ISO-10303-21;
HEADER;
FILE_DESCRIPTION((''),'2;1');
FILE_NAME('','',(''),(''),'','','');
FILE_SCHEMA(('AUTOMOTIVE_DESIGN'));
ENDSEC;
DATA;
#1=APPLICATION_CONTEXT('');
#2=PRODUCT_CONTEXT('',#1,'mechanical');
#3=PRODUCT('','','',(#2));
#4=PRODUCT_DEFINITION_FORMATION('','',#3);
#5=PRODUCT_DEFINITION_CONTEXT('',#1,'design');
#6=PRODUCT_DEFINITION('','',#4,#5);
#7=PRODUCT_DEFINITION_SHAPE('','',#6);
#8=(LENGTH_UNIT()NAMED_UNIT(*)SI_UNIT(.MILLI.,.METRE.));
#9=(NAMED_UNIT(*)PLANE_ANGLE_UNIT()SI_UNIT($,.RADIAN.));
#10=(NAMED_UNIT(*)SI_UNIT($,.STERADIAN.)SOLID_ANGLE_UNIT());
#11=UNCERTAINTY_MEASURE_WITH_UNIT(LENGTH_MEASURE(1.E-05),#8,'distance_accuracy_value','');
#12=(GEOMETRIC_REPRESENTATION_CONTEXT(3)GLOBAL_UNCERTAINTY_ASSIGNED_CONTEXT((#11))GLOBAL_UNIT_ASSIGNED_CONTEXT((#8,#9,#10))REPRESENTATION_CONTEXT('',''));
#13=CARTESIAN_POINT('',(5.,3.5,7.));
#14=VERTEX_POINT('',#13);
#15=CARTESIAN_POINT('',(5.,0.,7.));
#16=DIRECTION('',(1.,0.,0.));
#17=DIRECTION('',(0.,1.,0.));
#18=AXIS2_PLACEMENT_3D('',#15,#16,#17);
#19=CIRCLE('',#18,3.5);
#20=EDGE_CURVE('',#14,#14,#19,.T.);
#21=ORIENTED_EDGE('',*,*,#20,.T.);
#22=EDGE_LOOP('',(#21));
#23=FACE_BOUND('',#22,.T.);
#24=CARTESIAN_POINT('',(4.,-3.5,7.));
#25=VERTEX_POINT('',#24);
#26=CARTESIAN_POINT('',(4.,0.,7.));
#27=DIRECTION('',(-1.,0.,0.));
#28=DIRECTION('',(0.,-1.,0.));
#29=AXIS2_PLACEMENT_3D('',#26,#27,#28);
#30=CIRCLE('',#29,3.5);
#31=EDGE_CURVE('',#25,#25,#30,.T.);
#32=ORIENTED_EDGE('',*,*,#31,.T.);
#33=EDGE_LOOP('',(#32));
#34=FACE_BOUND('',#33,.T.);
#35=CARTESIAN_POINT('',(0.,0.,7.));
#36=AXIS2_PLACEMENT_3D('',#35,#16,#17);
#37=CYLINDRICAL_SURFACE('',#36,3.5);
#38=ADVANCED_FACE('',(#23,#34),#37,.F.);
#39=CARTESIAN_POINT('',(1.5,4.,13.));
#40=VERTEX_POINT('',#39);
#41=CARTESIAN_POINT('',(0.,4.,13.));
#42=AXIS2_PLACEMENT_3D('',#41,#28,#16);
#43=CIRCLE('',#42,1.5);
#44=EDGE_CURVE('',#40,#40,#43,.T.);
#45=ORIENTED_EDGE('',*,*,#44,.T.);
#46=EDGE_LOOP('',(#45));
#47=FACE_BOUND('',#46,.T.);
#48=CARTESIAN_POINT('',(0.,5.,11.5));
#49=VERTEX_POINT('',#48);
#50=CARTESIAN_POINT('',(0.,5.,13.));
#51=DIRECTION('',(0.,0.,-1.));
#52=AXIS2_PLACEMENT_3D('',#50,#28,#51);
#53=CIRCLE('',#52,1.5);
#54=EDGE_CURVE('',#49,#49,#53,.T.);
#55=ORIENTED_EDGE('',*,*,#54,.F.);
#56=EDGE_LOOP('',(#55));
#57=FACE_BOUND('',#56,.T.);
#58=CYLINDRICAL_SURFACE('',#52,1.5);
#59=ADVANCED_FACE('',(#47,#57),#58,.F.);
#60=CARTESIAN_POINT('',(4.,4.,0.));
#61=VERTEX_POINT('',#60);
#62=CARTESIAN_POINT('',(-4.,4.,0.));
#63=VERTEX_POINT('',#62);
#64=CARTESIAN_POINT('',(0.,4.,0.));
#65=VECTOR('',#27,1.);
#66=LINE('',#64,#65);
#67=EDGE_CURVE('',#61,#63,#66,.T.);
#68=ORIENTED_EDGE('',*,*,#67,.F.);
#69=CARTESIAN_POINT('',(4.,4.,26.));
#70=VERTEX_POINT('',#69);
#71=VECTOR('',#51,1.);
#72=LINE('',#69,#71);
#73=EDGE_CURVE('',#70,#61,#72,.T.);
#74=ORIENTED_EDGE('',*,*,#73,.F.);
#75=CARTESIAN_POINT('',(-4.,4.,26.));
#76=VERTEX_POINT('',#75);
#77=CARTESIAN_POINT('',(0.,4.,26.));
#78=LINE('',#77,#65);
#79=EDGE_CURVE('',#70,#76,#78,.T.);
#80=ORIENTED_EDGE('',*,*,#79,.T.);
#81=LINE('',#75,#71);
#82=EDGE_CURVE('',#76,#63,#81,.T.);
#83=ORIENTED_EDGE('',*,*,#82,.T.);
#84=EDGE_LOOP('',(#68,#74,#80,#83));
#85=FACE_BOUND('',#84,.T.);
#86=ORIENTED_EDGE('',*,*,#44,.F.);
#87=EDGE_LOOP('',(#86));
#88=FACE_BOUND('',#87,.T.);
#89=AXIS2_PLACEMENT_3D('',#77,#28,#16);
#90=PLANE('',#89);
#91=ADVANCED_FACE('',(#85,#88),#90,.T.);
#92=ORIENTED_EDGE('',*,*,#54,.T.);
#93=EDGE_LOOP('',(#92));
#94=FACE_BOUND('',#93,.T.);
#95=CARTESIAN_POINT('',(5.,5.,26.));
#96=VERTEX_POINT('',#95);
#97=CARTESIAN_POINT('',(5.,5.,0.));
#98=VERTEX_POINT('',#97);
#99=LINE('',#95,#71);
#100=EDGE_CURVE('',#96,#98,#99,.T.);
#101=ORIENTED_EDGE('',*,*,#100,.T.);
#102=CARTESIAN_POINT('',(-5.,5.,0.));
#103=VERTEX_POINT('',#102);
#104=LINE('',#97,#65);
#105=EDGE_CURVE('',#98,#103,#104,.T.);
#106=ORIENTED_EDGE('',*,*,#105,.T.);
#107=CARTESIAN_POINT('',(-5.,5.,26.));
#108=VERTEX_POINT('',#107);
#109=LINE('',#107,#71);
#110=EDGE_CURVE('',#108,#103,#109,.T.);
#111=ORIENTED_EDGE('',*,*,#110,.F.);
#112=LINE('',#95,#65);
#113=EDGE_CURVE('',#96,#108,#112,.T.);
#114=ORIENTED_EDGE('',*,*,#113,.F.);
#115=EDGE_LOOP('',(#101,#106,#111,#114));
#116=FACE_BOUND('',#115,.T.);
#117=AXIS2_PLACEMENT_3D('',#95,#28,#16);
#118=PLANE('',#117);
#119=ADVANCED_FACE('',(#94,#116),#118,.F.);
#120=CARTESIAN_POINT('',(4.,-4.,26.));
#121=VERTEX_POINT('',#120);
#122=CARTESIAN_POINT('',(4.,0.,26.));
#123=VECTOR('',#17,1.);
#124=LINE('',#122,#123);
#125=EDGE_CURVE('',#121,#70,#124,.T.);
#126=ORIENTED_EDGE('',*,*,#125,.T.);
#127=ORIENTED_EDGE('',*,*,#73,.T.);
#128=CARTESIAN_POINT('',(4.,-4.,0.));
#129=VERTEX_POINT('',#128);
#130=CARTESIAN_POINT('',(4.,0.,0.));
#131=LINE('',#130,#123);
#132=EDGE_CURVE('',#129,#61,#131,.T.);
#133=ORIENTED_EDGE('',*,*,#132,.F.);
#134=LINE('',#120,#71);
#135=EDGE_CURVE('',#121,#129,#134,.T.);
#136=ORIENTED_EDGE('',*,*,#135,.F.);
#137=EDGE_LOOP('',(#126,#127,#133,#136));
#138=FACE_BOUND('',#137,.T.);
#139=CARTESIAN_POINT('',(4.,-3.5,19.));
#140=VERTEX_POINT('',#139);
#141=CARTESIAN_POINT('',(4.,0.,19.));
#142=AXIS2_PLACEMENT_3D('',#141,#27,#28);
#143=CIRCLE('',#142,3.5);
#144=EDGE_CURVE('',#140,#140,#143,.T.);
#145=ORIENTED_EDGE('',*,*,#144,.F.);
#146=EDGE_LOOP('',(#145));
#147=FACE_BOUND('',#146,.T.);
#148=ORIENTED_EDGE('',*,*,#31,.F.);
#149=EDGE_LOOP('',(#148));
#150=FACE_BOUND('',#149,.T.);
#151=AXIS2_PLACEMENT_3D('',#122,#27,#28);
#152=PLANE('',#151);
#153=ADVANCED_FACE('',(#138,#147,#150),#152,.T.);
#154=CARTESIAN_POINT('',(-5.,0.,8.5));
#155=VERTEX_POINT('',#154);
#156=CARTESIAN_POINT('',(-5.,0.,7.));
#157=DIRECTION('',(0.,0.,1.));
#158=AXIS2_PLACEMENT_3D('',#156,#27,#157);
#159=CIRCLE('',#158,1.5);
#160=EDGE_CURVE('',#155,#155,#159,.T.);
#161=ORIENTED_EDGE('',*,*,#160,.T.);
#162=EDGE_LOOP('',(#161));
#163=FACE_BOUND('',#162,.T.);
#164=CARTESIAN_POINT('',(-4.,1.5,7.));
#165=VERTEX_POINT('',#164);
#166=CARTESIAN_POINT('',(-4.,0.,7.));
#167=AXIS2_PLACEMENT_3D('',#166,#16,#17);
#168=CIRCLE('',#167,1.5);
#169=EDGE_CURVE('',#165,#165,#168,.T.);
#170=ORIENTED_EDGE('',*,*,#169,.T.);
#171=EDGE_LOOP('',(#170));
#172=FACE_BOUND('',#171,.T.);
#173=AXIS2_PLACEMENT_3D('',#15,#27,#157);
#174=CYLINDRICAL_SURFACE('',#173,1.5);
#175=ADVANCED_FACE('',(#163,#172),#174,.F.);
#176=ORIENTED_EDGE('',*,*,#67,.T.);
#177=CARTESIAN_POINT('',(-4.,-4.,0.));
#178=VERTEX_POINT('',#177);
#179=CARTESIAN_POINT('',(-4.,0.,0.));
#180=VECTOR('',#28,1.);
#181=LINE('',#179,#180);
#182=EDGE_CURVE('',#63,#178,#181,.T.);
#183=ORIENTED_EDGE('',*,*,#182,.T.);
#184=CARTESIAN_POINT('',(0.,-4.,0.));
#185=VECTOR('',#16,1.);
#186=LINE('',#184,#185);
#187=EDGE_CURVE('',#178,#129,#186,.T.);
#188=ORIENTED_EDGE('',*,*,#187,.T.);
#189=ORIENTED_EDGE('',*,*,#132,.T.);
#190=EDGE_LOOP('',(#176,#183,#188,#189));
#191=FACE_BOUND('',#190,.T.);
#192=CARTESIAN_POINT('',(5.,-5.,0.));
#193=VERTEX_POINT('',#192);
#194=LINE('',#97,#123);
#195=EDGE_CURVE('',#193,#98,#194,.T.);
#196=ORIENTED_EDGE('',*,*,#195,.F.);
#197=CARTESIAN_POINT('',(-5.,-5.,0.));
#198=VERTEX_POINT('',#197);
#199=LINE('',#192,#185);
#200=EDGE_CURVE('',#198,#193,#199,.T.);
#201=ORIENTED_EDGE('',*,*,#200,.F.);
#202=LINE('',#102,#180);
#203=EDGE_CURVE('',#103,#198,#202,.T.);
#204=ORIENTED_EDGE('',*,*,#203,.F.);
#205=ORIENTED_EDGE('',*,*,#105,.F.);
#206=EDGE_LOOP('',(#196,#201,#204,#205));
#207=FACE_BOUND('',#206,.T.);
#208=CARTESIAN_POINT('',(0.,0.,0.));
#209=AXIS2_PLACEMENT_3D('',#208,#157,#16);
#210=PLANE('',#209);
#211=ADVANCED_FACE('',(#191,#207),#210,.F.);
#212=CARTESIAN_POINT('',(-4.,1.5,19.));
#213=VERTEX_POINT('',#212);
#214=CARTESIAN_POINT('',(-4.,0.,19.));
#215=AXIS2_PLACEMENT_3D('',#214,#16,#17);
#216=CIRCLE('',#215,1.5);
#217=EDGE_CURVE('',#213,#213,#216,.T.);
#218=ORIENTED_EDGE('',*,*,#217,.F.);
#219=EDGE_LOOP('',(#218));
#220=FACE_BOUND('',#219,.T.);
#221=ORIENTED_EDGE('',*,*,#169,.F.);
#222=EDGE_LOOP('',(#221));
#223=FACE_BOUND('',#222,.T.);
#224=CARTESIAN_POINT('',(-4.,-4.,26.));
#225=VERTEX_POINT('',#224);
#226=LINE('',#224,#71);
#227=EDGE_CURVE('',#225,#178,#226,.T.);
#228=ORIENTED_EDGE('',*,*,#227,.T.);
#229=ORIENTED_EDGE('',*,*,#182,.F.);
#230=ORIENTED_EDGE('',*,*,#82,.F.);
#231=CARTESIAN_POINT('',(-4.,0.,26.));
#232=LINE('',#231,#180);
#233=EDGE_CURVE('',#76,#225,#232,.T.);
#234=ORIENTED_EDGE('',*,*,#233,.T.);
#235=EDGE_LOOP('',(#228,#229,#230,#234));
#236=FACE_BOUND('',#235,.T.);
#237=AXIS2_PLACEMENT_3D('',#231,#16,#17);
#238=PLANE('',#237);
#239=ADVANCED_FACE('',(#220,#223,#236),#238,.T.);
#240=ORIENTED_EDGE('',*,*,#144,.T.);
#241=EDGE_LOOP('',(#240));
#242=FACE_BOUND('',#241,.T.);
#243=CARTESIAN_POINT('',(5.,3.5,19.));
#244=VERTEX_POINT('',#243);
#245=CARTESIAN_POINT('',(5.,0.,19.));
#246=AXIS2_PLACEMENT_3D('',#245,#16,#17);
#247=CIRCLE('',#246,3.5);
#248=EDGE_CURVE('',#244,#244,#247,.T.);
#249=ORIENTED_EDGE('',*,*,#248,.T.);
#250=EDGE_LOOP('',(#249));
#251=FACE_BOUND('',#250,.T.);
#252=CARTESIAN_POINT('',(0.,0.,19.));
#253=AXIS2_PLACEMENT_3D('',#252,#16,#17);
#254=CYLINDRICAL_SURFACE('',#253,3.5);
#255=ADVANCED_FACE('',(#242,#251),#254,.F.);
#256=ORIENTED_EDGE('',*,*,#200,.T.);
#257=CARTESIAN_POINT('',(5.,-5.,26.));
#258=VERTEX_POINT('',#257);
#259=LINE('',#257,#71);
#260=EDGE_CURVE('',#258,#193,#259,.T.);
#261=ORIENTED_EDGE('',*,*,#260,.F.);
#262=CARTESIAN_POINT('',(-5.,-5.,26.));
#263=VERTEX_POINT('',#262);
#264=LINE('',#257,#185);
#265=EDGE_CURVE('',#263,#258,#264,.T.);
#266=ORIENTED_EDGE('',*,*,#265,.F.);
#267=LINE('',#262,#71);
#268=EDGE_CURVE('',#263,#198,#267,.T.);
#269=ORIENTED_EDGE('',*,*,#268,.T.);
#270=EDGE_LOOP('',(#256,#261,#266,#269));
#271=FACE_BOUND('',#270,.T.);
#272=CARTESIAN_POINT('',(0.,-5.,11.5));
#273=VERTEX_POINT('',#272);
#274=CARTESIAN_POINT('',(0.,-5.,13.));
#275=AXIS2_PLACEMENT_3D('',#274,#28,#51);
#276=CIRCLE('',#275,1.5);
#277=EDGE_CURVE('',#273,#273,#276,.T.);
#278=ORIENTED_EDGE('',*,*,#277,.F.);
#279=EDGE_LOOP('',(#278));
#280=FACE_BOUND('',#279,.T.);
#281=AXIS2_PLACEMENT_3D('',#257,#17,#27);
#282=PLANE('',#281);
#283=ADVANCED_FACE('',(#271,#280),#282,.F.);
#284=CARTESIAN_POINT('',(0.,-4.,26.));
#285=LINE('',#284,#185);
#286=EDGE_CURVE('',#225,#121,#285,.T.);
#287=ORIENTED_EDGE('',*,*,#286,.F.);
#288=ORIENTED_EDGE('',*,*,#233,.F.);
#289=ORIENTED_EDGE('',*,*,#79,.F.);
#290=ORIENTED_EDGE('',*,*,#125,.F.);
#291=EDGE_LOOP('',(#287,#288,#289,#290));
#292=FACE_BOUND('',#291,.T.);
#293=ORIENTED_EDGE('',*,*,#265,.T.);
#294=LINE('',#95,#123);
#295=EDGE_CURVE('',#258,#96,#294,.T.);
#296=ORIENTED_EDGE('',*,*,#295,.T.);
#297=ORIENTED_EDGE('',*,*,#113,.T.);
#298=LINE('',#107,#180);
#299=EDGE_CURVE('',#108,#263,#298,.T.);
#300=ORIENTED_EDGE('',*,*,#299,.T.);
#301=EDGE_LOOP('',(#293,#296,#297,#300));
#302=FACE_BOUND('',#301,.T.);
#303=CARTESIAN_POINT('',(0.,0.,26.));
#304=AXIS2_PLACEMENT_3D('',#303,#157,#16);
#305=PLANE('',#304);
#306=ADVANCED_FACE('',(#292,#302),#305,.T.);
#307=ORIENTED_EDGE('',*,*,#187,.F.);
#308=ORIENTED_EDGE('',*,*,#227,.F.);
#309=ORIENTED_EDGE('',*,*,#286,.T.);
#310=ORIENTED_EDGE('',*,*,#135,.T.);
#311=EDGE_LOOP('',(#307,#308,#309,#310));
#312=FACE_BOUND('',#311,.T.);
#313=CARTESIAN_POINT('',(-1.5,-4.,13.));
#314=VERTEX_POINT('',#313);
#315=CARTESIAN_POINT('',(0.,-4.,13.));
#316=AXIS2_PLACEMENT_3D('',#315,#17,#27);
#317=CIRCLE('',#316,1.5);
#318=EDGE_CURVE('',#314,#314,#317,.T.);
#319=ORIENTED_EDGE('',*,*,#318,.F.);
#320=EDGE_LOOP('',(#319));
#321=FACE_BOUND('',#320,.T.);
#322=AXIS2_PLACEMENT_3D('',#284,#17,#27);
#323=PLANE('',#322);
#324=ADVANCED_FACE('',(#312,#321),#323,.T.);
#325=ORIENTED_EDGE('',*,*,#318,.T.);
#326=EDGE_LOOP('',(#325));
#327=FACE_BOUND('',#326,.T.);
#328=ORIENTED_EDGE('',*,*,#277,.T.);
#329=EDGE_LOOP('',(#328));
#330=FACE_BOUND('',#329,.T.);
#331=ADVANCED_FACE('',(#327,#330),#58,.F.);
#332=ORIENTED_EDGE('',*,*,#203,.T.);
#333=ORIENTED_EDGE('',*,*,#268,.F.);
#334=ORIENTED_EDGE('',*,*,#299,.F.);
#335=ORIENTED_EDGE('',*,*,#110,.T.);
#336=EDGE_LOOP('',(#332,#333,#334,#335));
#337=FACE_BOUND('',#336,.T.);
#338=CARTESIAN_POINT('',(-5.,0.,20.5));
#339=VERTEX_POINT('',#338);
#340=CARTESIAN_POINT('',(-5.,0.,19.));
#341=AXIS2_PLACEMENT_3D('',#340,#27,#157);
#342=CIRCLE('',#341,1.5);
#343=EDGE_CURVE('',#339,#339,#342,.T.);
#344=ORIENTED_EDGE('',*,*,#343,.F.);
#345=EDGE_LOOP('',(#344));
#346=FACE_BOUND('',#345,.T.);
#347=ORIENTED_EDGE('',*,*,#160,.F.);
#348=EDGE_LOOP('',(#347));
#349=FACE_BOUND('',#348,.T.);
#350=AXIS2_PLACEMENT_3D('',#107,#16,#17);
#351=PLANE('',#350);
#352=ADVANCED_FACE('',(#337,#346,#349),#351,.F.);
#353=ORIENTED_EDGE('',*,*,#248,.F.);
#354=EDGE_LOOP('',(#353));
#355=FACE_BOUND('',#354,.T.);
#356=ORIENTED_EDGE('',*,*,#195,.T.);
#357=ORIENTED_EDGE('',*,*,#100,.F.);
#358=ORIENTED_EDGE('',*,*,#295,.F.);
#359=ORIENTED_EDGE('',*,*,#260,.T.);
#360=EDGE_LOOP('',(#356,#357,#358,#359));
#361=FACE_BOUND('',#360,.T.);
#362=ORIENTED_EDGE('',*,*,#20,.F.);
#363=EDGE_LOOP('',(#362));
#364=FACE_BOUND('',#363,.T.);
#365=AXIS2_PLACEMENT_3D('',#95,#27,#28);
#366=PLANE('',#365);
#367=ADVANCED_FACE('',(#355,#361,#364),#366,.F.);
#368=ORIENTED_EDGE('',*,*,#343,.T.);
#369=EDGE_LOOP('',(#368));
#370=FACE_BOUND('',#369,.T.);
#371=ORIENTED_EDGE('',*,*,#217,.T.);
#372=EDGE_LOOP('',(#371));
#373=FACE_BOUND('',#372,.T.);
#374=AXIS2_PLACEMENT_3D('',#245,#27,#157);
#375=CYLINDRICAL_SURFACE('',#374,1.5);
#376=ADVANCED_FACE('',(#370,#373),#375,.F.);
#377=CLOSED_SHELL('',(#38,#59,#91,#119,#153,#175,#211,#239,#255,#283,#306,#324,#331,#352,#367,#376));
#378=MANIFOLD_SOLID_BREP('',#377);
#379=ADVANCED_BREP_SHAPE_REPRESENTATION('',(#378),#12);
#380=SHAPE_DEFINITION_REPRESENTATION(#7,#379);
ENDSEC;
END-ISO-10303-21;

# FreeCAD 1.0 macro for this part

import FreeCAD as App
import Part
import Sketcher


def add_polygon(sketch, points):
    """Adds a closed chain of lines whose ends are joined by coincident constraints."""
    first, n = sketch.GeometryCount, len(points)
    for a, b in zip(points, points[1:] + points[:1]):
        sketch.addGeometry(Part.LineSegment(App.Vector(*a, 0), App.Vector(*b, 0)), False)
    for i in range(n):
        sketch.addConstraint(Sketcher.Constraint("Coincident", first + i, 2, first + (i + 1) % n, 1))

doc = App.newDocument("Part")
body = doc.addObject("PartDesign::Body", "Body")

# Sketch on XY plane
sketch1 = body.newObject("Sketcher::SketchObject", "Sketch")
sketch1.AttachmentSupport = (doc.getObject("XY_Plane"), [""])
sketch1.MapMode = "FlatFace"
add_polygon(sketch1, [(-5, 5), (-5, -5), (5, -5), (5, 5)])  # lines 0-3
add_polygon(sketch1, [(4, -4), (-4, -4), (-4, 4), (4, 4)])  # lines 4-7
sketch1.addConstraint([
    Sketcher.Constraint("Vertical", 0),
    Sketcher.Constraint("Horizontal", 1),
    Sketcher.Constraint("Vertical", 2),
    Sketcher.Constraint("Horizontal", 3),
    Sketcher.Constraint("Horizontal", 4),
    Sketcher.Constraint("Vertical", 5),
    Sketcher.Constraint("Horizontal", 6),
    Sketcher.Constraint("Vertical", 7),
    Sketcher.Constraint("Symmetric", 0, 2, 2, 2, -1, 1),
    Sketcher.Constraint("Symmetric", 4, 2, 6, 2, -1, 1),
    Sketcher.Constraint("Equal", 3, 0),
    Sketcher.Constraint("Equal", 6, 5),
    Sketcher.Constraint("DistanceX", 1, 1, 1, 2, 10.0),
    Sketcher.Constraint("DistanceX", 4, 2, 4, 1, 8.0),
])
pad1 = body.newObject("PartDesign::Pad", "Pad")
pad1.Profile = sketch1
pad1.Length = 26

# Sketch on YZ plane
sketch2 = body.newObject("Sketcher::SketchObject", "Sketch001")
sketch2.AttachmentSupport = (doc.getObject("YZ_Plane"), [""])
sketch2.MapMode = "FlatFace"
sketch2.AttachmentOffset = App.Placement(App.Vector(0, 0, -5), App.Rotation())
sketch2.addGeometry([
    Part.Circle(App.Vector(0, 7, 0), App.Vector(0, 0, 1), 1.5),
    Part.Circle(App.Vector(0, 19, 0), App.Vector(0, 0, 1), 1.5),
], False)
sketch2.addConstraint([
    Sketcher.Constraint("Equal", 0, 1),
    Sketcher.Constraint("PointOnObject", 0, 3, -2),
    Sketcher.Constraint("PointOnObject", 1, 3, -2),
    Sketcher.Constraint("Diameter", 0, 3.0),
    Sketcher.Constraint("DistanceY", -1, 1, 0, 3, 7.0),
    Sketcher.Constraint("DistanceY", -1, 1, 1, 3, 19.0),
])
pocket1 = body.newObject("PartDesign::Pocket", "Pocket")
pocket1.Profile = sketch2
pocket1.Length = 10
pocket1.Reversed = True

# Sketch on XZ plane
sketch3 = body.newObject("Sketcher::SketchObject", "Sketch002")
sketch3.AttachmentSupport = (doc.getObject("XZ_Plane"), [""])
sketch3.MapMode = "FlatFace"
sketch3.AttachmentOffset = App.Placement(App.Vector(0, 0, 5), App.Rotation())
sketch3.addGeometry(Part.Circle(App.Vector(0, 13, 0), App.Vector(0, 0, 1), 1.5), False)
sketch3.addConstraint([
    Sketcher.Constraint("PointOnObject", 0, 3, -2),
    Sketcher.Constraint("Diameter", 0, 3.0),
    Sketcher.Constraint("DistanceY", -1, 1, 0, 3, 13.0),
])
pocket2 = body.newObject("PartDesign::Pocket", "Pocket001")
pocket2.Profile = sketch3
pocket2.Length = 10

# Sketch on YZ plane
sketch4 = body.newObject("Sketcher::SketchObject", "Sketch003")
sketch4.AttachmentSupport = (doc.getObject("YZ_Plane"), [""])
sketch4.MapMode = "FlatFace"
sketch4.AttachmentOffset = App.Placement(App.Vector(0, 0, 5), App.Rotation())
sketch4.addGeometry([
    Part.Circle(App.Vector(0, 19, 0), App.Vector(0, 0, 1), 3.5),
    Part.Circle(App.Vector(0, 7, 0), App.Vector(0, 0, 1), 3.5),
], False)
sketch4.addConstraint([
    Sketcher.Constraint("Equal", 0, 1),
    Sketcher.Constraint("PointOnObject", 0, 3, -2),
    Sketcher.Constraint("PointOnObject", 1, 3, -2),
    Sketcher.Constraint("Diameter", 0, 7.0),
    Sketcher.Constraint("DistanceY", -1, 1, 0, 3, 19.0),
    Sketcher.Constraint("DistanceY", -1, 1, 1, 3, 7.0),
])
pocket3 = body.newObject("PartDesign::Pocket", "Pocket002")
pocket3.Profile = sketch4
pocket3.Length = 5

doc.recompute()
